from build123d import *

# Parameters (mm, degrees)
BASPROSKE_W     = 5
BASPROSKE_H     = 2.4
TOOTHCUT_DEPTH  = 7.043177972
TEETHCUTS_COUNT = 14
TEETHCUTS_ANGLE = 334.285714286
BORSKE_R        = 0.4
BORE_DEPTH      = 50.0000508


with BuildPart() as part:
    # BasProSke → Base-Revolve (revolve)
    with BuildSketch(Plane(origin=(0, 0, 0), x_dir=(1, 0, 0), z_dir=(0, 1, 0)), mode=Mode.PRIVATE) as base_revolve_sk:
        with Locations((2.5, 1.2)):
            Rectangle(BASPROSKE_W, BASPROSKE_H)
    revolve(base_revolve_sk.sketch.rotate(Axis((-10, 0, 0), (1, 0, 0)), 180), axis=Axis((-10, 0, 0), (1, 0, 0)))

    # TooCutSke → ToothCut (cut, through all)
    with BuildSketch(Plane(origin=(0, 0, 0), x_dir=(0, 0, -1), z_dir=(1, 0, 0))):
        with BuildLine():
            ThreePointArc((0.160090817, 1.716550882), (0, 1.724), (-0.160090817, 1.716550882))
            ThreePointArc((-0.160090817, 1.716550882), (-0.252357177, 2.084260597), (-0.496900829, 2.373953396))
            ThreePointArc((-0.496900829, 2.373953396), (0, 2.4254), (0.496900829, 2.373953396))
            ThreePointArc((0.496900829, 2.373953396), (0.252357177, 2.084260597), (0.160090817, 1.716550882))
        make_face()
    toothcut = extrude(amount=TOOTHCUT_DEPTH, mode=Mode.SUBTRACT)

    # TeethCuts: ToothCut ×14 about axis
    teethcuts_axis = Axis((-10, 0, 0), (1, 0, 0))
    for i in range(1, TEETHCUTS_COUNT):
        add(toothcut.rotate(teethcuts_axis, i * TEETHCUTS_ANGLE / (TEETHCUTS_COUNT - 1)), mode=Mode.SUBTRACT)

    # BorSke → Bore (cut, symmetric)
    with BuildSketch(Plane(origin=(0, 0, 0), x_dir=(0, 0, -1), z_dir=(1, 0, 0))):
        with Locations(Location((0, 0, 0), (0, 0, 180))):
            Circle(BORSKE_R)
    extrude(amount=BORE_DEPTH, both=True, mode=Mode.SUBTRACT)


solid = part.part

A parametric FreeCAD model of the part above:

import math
import FreeCAD as App
import Part
import Sketcher

doc = App.newDocument("Part")
body = doc.addObject("PartDesign::Body", "Body")

sketch1 = doc.addObject("Sketcher::SketchObject", "Sketch")
body.addObject(sketch1)
sketch1.AttachmentSupport = (doc.XZ_Plane, [""])
sketch1.MapMode = "FlatFace"
sketch1.addGeometry(Part.LineSegment(App.Vector(0, -2.4, 0), App.Vector(0, 0, 0)), False)
sketch1.addGeometry(Part.LineSegment(App.Vector(0, 0, 0), App.Vector(5, 0, 0)), False)
sketch1.addGeometry(Part.LineSegment(App.Vector(5, 0, 0), App.Vector(5, -2.4, 0)), False)
sketch1.addGeometry(Part.LineSegment(App.Vector(5, -2.4, 0), App.Vector(0, -2.4, 0)), False)
sketch1.addConstraint(Sketcher.Constraint("Coincident", 0, 2, 1, 1))
sketch1.addConstraint(Sketcher.Constraint("Coincident", 1, 2, 2, 1))
sketch1.addConstraint(Sketcher.Constraint("Coincident", 2, 2, 3, 1))
sketch1.addConstraint(Sketcher.Constraint("Coincident", 3, 2, 0, 1))
sketch1.addConstraint(Sketcher.Constraint("Vertical", 0))
sketch1.addConstraint(Sketcher.Constraint("Horizontal", 1))
sketch1.addConstraint(Sketcher.Constraint("Vertical", 2))
sketch1.addConstraint(Sketcher.Constraint("Horizontal", 3))
sketch1.addConstraint(Sketcher.Constraint("Coincident", 0, 2, -1, 1))
sketch1.addConstraint(Sketcher.Constraint("DistanceX", 1, 1, 1, 2, 5.0))
sketch1.addConstraint(Sketcher.Constraint("DistanceY", 0, 1, 0, 2, 2.4))
revolution = doc.addObject("PartDesign::Revolution", "Revolution")
body.addObject(revolution)
revolution.Profile = sketch1
revolution.ReferenceAxis = (sketch1, ["H_Axis"])
revolution.Angle = 360

sketch2 = doc.addObject("Sketcher::SketchObject", "Sketch001")
body.addObject(sketch2)
sketch2.AttachmentSupport = (doc.YZ_Plane, [""])
sketch2.MapMode = "FlatFace"
sketch2.addGeometry(Part.ArcOfCircle(Part.Circle(App.Vector(0, 0, 0), App.Vector(0, 0, 1), 1.72), math.radians(-5.33), math.radians(5.33)), False)
sketch2.addGeometry(Part.ArcOfCircle(Part.Circle(App.Vector(1.7, -1, 0), App.Vector(0, 0, 1), 0.84), math.radians(37), math.radians(89)), False)
sketch2.addGeometry(Part.ArcOfCircle(Part.Circle(App.Vector(0, 0, 0), App.Vector(0, 0, 1), 2.43), math.radians(-12), math.radians(12)), False)
sketch2.addGeometry(Part.ArcOfCircle(Part.Circle(App.Vector(1.7, 1, 0), App.Vector(0, 0, 1), 0.84), math.radians(-89), math.radians(-37)), False)
sketch2.addConstraint(Sketcher.Constraint("Coincident", 0, 1, 1, 2))
sketch2.addConstraint(Sketcher.Constraint("Coincident", 1, 1, 2, 1))
sketch2.addConstraint(Sketcher.Constraint("Coincident", 2, 2, 3, 2))
sketch2.addConstraint(Sketcher.Constraint("Coincident", 3, 1, 0, 2))
sketch2.addConstraint(Sketcher.Constraint("Coincident", 0, 3, -1, 1))
sketch2.addConstraint(Sketcher.Constraint("Coincident", 2, 3, -1, 1))
sketch2.addConstraint(Sketcher.Constraint("Equal", 1, 3))
sketch2.addConstraint(Sketcher.Constraint("Symmetric", 1, 3, 3, 3, -1))
sketch2.addConstraint(Sketcher.Constraint("Radius", 1, 0.84))
sketch2.addConstraint(Sketcher.Constraint("Radius", 0, 1.724))
sketch2.addConstraint(Sketcher.Constraint("Radius", 2, 2.4254))
sketch2.addConstraint(Sketcher.Constraint("DistanceY", 1, 1, -1, 1, 0.496901))
sketch2.addConstraint(Sketcher.Constraint("DistanceY", 1, 3, -1, 1, 0.999951))
pocket1 = doc.addObject("PartDesign::Pocket", "Pocket")
body.addObject(pocket1)
pocket1.Profile = sketch2
pocket1.Type = "ThroughAll"
pocket1.Reversed = True
doc.recompute()

polarpattern = doc.addObject("PartDesign::PolarPattern", "PolarPattern")
body.addObject(polarpattern)
polarpattern.Originals = [pocket1]
polarpattern.Axis = (doc.X_Axis, [""])
polarpattern.Angle = 360
polarpattern.Occurrences = 14
body.Tip = polarpattern

sketch3 = doc.addObject("Sketcher::SketchObject", "Sketch002")
body.addObject(sketch3)
sketch3.AttachmentSupport = (doc.YZ_Plane, [""])
sketch3.MapMode = "FlatFace"
sketch3.addGeometry(Part.Circle(App.Vector(0, 0, 0), App.Vector(0, 0, 1), 0.4), False)
sketch3.addConstraint(Sketcher.Constraint("Coincident", 0, 3, -1, 1))
sketch3.addConstraint(Sketcher.Constraint("Diameter", 0, 0.8))
pocket2 = doc.addObject("PartDesign::Pocket", "Pocket001")
body.addObject(pocket2)
pocket2.Profile = sketch3
pocket2.Length = 100.000102
pocket2.Midplane = True

doc.recompute()
